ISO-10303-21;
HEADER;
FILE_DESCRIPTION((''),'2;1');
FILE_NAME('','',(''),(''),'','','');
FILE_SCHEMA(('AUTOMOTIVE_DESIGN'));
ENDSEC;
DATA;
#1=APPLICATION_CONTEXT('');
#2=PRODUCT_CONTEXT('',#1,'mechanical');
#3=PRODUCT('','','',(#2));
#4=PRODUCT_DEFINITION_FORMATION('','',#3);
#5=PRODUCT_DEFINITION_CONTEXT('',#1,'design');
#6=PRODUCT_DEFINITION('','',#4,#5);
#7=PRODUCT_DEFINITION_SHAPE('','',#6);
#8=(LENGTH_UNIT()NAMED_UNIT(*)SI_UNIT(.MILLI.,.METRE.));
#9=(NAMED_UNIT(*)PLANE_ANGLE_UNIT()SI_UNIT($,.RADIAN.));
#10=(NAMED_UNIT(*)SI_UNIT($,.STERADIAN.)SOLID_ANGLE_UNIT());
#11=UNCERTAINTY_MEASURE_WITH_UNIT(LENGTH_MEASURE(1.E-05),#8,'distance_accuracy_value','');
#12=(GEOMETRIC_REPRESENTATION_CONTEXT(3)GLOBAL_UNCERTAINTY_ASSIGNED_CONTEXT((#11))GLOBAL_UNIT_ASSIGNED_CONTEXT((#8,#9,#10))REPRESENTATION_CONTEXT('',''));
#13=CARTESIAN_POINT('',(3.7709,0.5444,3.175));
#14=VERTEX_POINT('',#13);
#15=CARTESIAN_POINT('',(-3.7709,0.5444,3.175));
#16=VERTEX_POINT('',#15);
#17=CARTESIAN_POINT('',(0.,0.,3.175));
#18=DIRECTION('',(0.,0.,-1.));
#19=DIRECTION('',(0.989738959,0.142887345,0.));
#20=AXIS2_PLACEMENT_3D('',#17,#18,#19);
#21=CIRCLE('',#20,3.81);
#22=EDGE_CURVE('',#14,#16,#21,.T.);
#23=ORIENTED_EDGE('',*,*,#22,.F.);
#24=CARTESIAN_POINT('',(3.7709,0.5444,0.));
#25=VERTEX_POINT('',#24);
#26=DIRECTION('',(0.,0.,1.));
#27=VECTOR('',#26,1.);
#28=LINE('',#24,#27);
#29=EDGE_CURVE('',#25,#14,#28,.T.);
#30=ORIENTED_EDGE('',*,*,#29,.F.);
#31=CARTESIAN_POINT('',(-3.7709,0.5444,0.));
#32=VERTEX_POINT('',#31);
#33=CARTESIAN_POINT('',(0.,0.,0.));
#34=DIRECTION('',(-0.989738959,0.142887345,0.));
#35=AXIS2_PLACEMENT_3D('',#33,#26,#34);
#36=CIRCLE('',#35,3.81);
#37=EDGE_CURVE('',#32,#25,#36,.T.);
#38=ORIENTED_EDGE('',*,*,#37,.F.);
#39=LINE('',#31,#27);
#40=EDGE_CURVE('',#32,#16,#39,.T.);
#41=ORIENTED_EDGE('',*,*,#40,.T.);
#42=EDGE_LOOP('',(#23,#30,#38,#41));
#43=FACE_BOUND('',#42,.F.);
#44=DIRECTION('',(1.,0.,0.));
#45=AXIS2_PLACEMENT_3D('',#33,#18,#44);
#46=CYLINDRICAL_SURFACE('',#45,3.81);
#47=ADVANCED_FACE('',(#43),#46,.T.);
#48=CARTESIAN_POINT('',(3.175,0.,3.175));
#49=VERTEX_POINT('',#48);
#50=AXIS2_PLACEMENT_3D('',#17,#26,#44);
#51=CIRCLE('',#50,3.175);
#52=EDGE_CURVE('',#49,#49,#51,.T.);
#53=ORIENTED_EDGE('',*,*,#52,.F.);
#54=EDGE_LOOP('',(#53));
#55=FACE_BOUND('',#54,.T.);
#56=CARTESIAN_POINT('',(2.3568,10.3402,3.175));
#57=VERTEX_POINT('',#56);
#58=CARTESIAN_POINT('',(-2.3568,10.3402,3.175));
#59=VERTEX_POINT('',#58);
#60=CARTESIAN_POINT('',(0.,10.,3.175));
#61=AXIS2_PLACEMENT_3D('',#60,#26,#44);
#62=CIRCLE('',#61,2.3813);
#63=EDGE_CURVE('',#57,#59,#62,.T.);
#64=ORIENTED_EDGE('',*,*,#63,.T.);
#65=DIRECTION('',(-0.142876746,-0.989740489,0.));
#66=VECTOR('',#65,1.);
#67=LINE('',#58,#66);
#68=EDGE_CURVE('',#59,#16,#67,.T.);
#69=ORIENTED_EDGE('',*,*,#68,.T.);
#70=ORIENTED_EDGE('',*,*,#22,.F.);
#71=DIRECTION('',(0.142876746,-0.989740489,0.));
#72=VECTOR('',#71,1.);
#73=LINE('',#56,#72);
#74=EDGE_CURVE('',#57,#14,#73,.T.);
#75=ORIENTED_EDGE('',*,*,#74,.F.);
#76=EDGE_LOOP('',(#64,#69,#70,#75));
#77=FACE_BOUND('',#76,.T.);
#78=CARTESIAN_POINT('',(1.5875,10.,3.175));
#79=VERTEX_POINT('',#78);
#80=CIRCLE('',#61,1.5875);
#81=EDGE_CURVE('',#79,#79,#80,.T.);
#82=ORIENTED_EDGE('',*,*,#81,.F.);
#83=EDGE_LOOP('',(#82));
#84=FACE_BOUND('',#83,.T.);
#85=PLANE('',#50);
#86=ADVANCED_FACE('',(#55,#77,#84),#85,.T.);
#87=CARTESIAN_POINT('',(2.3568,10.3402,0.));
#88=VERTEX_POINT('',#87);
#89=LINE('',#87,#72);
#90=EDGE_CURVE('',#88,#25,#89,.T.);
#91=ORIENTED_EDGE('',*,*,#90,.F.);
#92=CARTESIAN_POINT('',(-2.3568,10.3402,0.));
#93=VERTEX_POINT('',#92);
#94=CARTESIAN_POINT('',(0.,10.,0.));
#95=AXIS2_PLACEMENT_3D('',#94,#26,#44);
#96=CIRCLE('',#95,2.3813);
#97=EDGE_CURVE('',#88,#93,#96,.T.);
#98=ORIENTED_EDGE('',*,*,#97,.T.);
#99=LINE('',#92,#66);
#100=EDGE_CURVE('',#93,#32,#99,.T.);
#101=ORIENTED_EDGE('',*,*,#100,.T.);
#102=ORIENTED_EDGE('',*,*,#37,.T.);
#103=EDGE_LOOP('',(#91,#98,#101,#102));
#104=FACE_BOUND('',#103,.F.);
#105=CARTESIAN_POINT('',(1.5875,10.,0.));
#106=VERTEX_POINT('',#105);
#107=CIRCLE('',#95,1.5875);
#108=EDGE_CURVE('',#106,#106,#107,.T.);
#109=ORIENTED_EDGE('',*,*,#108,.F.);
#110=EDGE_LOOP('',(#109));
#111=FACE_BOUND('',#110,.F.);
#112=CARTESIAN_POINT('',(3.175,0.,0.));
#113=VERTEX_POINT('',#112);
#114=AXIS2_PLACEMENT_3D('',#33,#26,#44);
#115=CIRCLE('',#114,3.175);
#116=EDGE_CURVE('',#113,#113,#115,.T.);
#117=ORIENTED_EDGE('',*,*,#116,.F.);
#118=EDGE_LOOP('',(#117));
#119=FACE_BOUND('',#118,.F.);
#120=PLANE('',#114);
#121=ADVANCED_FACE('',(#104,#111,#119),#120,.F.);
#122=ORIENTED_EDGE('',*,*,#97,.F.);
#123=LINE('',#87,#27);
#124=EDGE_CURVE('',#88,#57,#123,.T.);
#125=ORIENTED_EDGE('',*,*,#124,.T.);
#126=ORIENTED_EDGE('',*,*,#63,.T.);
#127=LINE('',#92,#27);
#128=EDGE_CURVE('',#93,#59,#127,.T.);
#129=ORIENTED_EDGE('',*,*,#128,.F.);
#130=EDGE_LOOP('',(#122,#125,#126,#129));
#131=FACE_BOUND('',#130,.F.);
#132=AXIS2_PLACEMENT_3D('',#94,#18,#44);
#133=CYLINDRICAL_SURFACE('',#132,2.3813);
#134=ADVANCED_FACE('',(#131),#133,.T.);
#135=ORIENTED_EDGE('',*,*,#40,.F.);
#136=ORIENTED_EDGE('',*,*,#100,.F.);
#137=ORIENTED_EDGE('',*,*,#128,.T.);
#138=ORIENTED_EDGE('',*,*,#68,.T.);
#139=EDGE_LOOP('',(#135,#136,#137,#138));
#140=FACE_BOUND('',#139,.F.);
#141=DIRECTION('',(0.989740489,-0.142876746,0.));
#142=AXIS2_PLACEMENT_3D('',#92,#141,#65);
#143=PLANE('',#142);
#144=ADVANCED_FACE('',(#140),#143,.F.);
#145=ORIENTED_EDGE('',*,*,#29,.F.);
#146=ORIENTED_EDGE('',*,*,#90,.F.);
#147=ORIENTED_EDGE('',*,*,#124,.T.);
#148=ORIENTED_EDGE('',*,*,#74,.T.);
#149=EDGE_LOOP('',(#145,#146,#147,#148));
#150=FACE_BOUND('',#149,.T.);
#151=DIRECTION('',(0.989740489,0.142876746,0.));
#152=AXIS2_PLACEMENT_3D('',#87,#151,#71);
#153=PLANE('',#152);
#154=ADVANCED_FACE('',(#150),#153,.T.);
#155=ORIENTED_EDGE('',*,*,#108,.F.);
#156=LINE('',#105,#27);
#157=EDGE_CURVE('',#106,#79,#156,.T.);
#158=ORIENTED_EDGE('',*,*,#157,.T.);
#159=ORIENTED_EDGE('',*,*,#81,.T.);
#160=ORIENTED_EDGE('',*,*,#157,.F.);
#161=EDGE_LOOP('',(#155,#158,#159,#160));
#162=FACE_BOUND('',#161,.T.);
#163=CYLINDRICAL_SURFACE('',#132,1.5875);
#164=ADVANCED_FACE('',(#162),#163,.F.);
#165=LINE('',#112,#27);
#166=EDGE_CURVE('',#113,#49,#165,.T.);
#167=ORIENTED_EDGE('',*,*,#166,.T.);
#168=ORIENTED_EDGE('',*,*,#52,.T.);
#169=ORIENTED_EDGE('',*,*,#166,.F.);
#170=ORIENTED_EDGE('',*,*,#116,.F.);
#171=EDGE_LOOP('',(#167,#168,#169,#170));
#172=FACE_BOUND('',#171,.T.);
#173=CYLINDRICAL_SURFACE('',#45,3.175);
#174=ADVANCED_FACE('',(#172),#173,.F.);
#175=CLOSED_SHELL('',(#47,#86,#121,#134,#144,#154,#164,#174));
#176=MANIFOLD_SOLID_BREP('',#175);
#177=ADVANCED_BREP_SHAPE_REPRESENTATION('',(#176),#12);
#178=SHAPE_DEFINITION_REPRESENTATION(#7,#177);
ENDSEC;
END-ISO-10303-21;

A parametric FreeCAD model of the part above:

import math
import FreeCAD as App
import Part
import Sketcher

V = App.Vector
Q = App.Units.Quantity

doc = App.newDocument("Part")
body = doc.addObject("PartDesign::Body", "Body")

sketch1 = doc.addObject("Sketcher::SketchObject", "Sketch")
body.addObject(sketch1)
sketch1.AttachmentSupport = (doc.XY_Plane, [""])
sketch1.MapMode = "FlatFace"
sketch1.addGeometry(Part.ArcOfCircle(Part.Circle(V(0, 0, 0), V(0, 0, 1), 3.8), math.radians(172), math.radians(368)), False)
sketch1.addGeometry(Part.LineSegment(V(3.8, 0.5, 0), V(2.4, 10.3, 0)), False)
sketch1.addGeometry(Part.ArcOfCircle(Part.Circle(V(0, 10, 0), V(0, 0, 1), 2.4), math.radians(8), math.radians(172)), False)
sketch1.addGeometry(Part.LineSegment(V(-2.4, 10.3, 0), V(-3.8, 0.5, 0)), False)
sketch1.addGeometry(Part.Circle(V(0, 0, 0), V(0, 0, 1), 3.2), False)
sketch1.addGeometry(Part.Circle(V(0, 10, 0), V(0, 0, 1), 1.6), False)
sketch1.addConstraint(Sketcher.Constraint("Tangent", 0, 2, 1, 1))
sketch1.addConstraint(Sketcher.Constraint("Tangent", 1, 2, 2, 1))
sketch1.addConstraint(Sketcher.Constraint("Tangent", 2, 2, 3, 1))
sketch1.addConstraint(Sketcher.Constraint("Tangent", 3, 2, 0, 1))
sketch1.addConstraint(Sketcher.Constraint("Coincident", 0, 3, -1, 1))
sketch1.addConstraint(Sketcher.Constraint("Coincident", 4, 3, -1, 1))
sketch1.addConstraint(Sketcher.Constraint("Coincident", 5, 3, 2, 3))
sketch1.addConstraint(Sketcher.Constraint("PointOnObject", 2, 3, -2))
sketch1.addConstraint(Sketcher.Constraint("Diameter", 4, Q("0.25 in")))
sketch1.addConstraint(Sketcher.Constraint("Radius", 0, Q("0.15 in")))
sketch1.addConstraint(Sketcher.Constraint("Diameter", 5, Q("0.125 in")))
sketch1.addConstraint(Sketcher.Constraint("Radius", 2, Q("0.093752 in")))
sketch1.addConstraint(Sketcher.Constraint("DistanceY", -1, 1, 2, 3, Q("0.3937 in")))
pad1 = doc.addObject("PartDesign::Pad", "Pad")
body.addObject(pad1)
pad1.Profile = sketch1
pad1.Length = Q("0.125 in")

doc.recompute()
